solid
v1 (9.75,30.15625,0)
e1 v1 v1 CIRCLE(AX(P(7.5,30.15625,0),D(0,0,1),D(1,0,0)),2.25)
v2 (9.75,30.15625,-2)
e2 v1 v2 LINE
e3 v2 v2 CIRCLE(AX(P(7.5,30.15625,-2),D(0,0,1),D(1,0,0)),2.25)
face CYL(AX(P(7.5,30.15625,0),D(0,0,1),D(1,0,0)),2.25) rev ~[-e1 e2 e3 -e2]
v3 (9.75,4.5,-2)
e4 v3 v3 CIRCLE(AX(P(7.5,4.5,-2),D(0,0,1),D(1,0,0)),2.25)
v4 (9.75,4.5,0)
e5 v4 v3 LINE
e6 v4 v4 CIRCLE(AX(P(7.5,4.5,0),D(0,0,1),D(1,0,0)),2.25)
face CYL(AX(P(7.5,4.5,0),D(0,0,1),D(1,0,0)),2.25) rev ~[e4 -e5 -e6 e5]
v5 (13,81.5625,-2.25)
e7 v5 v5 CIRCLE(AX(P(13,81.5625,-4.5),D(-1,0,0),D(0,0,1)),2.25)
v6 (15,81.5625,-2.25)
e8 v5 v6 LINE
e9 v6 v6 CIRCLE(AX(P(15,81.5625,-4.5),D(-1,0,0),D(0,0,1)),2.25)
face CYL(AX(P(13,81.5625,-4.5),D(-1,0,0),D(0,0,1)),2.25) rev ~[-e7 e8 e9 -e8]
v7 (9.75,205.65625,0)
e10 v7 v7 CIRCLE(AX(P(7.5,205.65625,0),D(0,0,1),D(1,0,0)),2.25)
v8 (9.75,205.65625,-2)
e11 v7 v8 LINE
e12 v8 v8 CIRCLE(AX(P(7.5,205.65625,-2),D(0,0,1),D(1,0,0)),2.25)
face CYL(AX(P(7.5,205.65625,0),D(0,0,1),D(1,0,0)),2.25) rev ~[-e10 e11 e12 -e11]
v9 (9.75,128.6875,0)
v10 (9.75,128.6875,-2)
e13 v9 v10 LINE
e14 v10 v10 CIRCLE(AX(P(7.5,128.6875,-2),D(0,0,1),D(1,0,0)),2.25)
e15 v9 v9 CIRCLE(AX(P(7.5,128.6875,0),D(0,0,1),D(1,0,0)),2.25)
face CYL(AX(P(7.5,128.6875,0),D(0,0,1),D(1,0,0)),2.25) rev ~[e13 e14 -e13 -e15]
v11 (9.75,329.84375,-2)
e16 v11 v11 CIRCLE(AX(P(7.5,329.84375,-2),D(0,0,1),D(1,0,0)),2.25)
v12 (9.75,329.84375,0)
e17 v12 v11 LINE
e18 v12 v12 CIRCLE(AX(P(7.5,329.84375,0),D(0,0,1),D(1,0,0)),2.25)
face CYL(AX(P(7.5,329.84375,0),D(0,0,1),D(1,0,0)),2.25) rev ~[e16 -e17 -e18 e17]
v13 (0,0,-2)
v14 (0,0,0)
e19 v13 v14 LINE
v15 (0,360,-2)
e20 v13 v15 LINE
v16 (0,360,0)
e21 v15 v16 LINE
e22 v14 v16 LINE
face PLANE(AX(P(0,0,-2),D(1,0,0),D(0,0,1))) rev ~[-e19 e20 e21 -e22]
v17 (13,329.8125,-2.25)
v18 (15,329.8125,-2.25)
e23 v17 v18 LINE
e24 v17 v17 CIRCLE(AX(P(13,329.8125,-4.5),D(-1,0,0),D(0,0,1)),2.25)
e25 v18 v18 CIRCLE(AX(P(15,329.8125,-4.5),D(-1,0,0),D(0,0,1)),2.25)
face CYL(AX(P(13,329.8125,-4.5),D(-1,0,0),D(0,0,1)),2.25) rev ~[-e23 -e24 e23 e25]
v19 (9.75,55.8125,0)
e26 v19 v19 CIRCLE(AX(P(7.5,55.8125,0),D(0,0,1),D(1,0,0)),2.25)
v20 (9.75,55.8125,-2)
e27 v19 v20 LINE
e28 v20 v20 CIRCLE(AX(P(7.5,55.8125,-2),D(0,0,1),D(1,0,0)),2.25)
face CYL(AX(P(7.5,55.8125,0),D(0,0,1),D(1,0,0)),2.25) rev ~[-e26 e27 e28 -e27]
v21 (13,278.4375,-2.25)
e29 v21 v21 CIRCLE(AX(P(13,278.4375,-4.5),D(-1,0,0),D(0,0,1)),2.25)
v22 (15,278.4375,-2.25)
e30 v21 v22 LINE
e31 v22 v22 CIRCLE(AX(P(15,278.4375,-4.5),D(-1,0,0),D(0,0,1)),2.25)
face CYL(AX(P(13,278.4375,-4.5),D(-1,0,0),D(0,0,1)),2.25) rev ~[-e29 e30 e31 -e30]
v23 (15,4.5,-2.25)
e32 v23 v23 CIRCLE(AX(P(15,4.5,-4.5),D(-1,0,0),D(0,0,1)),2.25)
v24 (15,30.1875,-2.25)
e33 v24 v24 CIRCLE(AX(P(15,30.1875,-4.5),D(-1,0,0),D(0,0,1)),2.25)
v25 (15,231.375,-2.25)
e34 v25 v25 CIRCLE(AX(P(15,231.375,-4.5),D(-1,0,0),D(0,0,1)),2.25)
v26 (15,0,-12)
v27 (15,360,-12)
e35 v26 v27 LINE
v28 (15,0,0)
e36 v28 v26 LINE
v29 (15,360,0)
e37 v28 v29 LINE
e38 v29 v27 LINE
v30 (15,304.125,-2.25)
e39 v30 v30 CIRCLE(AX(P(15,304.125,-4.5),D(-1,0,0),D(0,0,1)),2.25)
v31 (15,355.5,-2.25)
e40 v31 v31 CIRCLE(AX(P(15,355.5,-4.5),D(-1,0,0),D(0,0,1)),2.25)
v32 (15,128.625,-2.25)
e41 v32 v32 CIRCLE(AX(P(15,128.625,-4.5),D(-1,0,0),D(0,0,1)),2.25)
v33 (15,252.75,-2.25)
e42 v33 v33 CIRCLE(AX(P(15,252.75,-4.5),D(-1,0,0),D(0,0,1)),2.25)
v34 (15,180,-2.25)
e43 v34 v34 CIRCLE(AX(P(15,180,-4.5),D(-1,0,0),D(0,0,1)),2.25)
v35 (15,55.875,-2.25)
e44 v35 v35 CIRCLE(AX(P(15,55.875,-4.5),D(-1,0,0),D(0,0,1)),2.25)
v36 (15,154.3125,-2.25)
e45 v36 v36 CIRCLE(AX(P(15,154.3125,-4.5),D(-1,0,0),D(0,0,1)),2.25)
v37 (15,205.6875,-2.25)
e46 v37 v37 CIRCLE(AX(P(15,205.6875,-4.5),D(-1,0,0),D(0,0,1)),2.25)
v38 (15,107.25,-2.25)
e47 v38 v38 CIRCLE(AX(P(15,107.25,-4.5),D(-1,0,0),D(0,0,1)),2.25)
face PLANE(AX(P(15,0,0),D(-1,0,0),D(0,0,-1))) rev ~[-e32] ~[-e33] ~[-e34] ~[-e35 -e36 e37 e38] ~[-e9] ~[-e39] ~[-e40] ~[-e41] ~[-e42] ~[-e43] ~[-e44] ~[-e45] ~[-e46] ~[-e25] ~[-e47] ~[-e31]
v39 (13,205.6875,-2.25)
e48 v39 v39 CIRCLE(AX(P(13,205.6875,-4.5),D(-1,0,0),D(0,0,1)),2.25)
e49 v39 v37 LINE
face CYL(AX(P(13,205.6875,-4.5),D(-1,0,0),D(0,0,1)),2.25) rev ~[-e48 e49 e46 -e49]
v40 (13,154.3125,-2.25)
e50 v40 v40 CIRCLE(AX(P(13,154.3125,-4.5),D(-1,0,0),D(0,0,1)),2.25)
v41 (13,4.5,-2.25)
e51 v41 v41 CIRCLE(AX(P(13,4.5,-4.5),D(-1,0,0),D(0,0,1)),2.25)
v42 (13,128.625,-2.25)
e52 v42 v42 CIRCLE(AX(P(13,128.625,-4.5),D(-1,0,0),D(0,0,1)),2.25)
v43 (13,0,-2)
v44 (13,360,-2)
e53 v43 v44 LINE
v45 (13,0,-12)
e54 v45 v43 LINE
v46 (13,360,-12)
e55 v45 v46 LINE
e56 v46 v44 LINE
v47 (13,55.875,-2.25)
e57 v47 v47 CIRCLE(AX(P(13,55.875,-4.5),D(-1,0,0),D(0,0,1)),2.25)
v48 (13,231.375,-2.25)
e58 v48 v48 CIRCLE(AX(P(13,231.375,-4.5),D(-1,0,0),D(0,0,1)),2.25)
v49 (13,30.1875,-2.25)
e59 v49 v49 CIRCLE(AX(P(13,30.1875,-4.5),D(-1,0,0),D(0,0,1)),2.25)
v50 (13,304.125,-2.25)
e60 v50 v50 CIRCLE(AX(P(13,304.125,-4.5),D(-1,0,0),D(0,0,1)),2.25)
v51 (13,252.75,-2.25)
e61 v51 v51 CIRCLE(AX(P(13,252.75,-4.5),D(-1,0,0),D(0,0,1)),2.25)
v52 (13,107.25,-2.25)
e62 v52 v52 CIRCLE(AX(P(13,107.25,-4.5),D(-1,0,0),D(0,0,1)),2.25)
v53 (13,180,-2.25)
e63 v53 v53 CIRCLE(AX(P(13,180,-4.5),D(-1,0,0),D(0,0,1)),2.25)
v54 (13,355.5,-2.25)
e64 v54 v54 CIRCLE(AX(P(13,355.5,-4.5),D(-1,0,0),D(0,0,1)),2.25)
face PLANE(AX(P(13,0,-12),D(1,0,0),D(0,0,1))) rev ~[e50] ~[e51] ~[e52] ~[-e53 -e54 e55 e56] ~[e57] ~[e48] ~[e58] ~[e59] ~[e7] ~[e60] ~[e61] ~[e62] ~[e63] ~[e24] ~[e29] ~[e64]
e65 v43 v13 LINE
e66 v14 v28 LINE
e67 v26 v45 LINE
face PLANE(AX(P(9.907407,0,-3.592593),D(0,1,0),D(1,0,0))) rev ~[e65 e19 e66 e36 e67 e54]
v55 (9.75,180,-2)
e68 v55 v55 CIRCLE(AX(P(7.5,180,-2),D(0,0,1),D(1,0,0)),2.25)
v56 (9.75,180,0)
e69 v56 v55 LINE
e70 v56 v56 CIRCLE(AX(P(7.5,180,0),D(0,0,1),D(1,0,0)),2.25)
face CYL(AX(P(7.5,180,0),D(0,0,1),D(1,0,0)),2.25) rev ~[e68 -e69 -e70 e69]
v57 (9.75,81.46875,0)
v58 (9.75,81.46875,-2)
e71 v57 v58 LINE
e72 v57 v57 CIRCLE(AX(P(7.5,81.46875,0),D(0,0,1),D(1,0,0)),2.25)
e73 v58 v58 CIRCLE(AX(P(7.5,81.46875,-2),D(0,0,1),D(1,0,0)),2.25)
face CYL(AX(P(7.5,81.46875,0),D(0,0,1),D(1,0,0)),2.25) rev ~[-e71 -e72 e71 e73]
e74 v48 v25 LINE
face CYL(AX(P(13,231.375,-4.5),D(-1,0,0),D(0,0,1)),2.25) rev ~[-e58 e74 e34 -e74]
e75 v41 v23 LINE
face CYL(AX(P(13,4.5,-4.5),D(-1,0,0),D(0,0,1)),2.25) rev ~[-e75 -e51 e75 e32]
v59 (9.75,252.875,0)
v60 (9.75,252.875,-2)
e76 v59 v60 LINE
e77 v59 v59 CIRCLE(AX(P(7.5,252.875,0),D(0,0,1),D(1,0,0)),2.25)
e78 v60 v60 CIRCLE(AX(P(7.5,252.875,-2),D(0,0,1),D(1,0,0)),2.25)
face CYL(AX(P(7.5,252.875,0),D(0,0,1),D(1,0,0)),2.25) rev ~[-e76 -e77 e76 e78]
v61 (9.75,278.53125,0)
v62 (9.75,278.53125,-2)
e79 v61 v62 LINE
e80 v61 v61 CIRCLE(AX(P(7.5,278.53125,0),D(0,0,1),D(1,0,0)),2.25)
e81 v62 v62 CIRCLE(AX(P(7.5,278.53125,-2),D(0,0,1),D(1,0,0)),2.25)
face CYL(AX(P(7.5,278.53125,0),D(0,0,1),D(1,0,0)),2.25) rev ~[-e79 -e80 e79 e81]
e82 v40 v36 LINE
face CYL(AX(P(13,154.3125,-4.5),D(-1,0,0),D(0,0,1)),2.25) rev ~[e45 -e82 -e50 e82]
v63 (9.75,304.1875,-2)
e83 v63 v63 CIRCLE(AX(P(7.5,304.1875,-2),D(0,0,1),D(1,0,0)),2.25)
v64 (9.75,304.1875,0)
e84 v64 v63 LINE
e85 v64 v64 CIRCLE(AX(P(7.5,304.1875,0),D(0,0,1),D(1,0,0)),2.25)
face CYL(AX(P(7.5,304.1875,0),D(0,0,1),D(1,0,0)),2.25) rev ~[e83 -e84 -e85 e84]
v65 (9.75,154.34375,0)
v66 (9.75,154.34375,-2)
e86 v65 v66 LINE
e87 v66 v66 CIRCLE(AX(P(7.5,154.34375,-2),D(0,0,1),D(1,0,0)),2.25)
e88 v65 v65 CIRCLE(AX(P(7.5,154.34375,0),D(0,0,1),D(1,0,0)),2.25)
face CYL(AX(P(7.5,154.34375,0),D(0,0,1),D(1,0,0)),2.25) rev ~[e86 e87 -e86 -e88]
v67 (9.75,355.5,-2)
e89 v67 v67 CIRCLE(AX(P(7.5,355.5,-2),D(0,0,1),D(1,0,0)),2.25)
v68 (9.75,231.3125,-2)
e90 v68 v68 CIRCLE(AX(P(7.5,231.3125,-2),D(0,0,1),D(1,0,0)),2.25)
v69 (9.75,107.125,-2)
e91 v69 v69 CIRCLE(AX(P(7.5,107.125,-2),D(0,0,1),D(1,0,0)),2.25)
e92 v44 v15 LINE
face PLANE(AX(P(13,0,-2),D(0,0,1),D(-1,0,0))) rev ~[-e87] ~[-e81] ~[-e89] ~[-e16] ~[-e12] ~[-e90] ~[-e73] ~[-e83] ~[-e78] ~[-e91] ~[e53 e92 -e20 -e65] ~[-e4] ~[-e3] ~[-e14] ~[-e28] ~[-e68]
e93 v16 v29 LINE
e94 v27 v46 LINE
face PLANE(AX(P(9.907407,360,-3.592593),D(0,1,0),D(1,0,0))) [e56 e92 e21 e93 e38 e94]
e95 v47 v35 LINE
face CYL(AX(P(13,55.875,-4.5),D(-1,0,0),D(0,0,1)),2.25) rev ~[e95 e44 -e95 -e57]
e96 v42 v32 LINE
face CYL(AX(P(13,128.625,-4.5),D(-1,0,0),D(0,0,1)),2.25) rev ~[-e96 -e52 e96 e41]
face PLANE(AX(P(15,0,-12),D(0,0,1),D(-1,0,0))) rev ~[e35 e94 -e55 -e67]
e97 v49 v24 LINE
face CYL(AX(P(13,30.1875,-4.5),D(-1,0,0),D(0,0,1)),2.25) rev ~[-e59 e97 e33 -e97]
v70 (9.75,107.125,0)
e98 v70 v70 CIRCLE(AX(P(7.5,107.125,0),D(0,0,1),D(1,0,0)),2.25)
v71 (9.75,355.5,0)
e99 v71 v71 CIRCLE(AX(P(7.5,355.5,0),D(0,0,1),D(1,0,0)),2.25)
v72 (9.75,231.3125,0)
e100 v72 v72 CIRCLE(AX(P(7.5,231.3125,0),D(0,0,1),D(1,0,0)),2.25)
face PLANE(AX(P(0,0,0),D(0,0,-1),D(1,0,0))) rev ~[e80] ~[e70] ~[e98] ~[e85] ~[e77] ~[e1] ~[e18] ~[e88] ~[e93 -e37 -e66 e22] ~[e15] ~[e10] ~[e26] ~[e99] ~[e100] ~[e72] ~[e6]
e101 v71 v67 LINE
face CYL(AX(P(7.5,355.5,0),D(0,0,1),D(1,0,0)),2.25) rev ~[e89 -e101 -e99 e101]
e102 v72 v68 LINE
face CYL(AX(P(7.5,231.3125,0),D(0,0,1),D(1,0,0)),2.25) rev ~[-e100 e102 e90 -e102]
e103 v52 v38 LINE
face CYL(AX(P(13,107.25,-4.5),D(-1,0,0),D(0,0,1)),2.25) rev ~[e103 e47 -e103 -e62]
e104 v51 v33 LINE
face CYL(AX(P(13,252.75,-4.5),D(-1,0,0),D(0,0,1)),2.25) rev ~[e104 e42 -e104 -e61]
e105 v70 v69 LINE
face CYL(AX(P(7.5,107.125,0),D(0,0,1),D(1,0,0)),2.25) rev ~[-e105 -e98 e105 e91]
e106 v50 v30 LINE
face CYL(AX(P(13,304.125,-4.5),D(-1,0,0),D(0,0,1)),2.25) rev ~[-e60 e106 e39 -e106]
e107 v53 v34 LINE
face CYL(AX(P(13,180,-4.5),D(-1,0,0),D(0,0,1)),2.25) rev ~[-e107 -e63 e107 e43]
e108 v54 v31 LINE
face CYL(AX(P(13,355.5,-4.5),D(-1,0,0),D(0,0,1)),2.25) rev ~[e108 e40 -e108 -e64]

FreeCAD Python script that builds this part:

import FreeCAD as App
import Part
import Sketcher
from FreeCAD import Vector
Q = App.Units.Quantity


def add_polygon(sketch, points):
    """Adds a closed chain of lines whose ends are joined by coincident constraints."""
    first, n = sketch.GeometryCount, len(points)
    for a, b in zip(points, points[1:] + points[:1]):
        sketch.addGeometry(Part.LineSegment(App.Vector(*a, 0), App.Vector(*b, 0)), False)
    for i in range(n):
        sketch.addConstraint(Sketcher.Constraint("Coincident", first + i, 2, first + (i + 1) % n, 1))

doc = App.newDocument("Part")
body = doc.addObject("PartDesign::Body", "Body")

# Sketch on XZ plane
sketch1 = body.newObject("Sketcher::SketchObject", "Sketch")
sketch1.AttachmentSupport = (doc.getObject("XZ_Plane"), [""])
sketch1.MapMode = "FlatFace"
add_polygon(sketch1, [(0, 0), (15, 0), (15, -12), (13, -12), (13, -2), (0, -2)])  # lines 0-5
sketch1.addConstraint([
    Sketcher.Constraint("Horizontal", 0),
    Sketcher.Constraint("Vertical", 1),
    Sketcher.Constraint("Horizontal", 2),
    Sketcher.Constraint("Vertical", 3),
    Sketcher.Constraint("Horizontal", 4),
    Sketcher.Constraint("Vertical", 5),
    Sketcher.Constraint("Coincident", 5, 2, -1, 1),
    Sketcher.Constraint("Equal", 2, 5),
    Sketcher.Constraint("DistanceX", 0, 1, 0, 2, Q("15 mm")),
    Sketcher.Constraint("DistanceX", 2, 2, 2, 1, Q("2 mm")),
    Sketcher.Constraint("DistanceY", 1, 2, 1, 1, Q("12 mm")),
])
pad1 = body.newObject("PartDesign::Pad", "Pad")
pad1.Profile = sketch1
pad1.Length = 360
pad1.Reversed = True

# Sketch on YZ plane
sketch2 = body.newObject("Sketcher::SketchObject", "Sketch001")
sketch2.AttachmentSupport = (doc.getObject("YZ_Plane"), [""])
sketch2.MapMode = "FlatFace"
sketch2.AttachmentOffset = App.Placement(Vector(0, 0, 13), App.Rotation())
sketch2.addGeometry(Part.Circle(Vector(329.8, -4.5, 0), Vector(0, 0, 1), 2.2), False)
sketch2.addConstraint([
    Sketcher.Constraint("Diameter", 0, Q("4.5 mm")),
    Sketcher.Constraint("DistanceY", 0, 3, -1, 1, Q("4.5 mm")),
    Sketcher.Constraint("DistanceX", -1, 1, 0, 3, Q("329.8125 mm")),
])
pocket1 = body.newObject("PartDesign::Pocket", "Pocket")
pocket1.Profile = sketch2
pocket1.Type = "UpToFirst"
pocket1.Reversed = True

# Sketch on YZ plane
sketch3 = body.newObject("Sketcher::SketchObject", "Sketch002")
sketch3.AttachmentSupport = (doc.getObject("YZ_Plane"), [""])
sketch3.MapMode = "FlatFace"
sketch3.AttachmentOffset = App.Placement(Vector(0, 0, 13), App.Rotation())
sketch3.addGeometry(Part.Circle(Vector(304.1, -4.5, 0), Vector(0, 0, 1), 2.2), False)
sketch3.addConstraint([
    Sketcher.Constraint("Diameter", 0, Q("4.5 mm")),
    Sketcher.Constraint("DistanceY", 0, 3, -1, 1, Q("4.5 mm")),
    Sketcher.Constraint("DistanceX", -1, 1, 0, 3, Q("304.125 mm")),
])
pocket2 = body.newObject("PartDesign::Pocket", "Pocket001")
pocket2.Profile = sketch3
pocket2.Type = "UpToFirst"
pocket2.Reversed = True

# Sketch on YZ plane
sketch4 = body.newObject("Sketcher::SketchObject", "Sketch003")
sketch4.AttachmentSupport = (doc.getObject("YZ_Plane"), [""])
sketch4.MapMode = "FlatFace"
sketch4.AttachmentOffset = App.Placement(Vector(0, 0, 13), App.Rotation())
sketch4.addGeometry(Part.Circle(Vector(278.4, -4.5, 0), Vector(0, 0, 1), 2.2), False)
sketch4.addConstraint([
    Sketcher.Constraint("Diameter", 0, Q("4.5 mm")),
    Sketcher.Constraint("DistanceY", 0, 3, -1, 1, Q("4.5 mm")),
    Sketcher.Constraint("DistanceX", -1, 1, 0, 3, Q("278.4375 mm")),
])
pocket3 = body.newObject("PartDesign::Pocket", "Pocket002")
pocket3.Profile = sketch4
pocket3.Type = "UpToFirst"
pocket3.Reversed = True

# Sketch on YZ plane
sketch5 = body.newObject("Sketcher::SketchObject", "Sketch004")
sketch5.AttachmentSupport = (doc.getObject("YZ_Plane"), [""])
sketch5.MapMode = "FlatFace"
sketch5.AttachmentOffset = App.Placement(Vector(0, 0, 13), App.Rotation())
sketch5.addGeometry(Part.Circle(Vector(252.8, -4.5, 0), Vector(0, 0, 1), 2.2), False)
sketch5.addConstraint([
    Sketcher.Constraint("Diameter", 0, Q("4.5 mm")),
    Sketcher.Constraint("DistanceY", 0, 3, -1, 1, Q("4.5 mm")),
    Sketcher.Constraint("DistanceX", -1, 1, 0, 3, Q("252.75 mm")),
])
pocket4 = body.newObject("PartDesign::Pocket", "Pocket003")
pocket4.Profile = sketch5
pocket4.Type = "UpToFirst"
pocket4.Reversed = True

# Sketch on YZ plane
sketch6 = body.newObject("Sketcher::SketchObject", "Sketch005")
sketch6.AttachmentSupport = (doc.getObject("YZ_Plane"), [""])
sketch6.MapMode = "FlatFace"
sketch6.AttachmentOffset = App.Placement(Vector(0, 0, 13), App.Rotation())
sketch6.addGeometry(Part.Circle(Vector(231.4, -4.5, 0), Vector(0, 0, 1), 2.2), False)
sketch6.addConstraint([
    Sketcher.Constraint("Diameter", 0, Q("4.5 mm")),
    Sketcher.Constraint("DistanceY", 0, 3, -1, 1, Q("4.5 mm")),
    Sketcher.Constraint("DistanceX", -1, 1, 0, 3, Q("231.375 mm")),
])
pocket5 = body.newObject("PartDesign::Pocket", "Pocket004")
pocket5.Profile = sketch6
pocket5.Type = "UpToFirst"
pocket5.Reversed = True

# Sketch on YZ plane
sketch7 = body.newObject("Sketcher::SketchObject", "Sketch006")
sketch7.AttachmentSupport = (doc.getObject("YZ_Plane"), [""])
sketch7.MapMode = "FlatFace"
sketch7.AttachmentOffset = App.Placement(Vector(0, 0, 13), App.Rotation())
sketch7.addGeometry(Part.Circle(Vector(205.7, -4.5, 0), Vector(0, 0, 1), 2.2), False)
sketch7.addConstraint([
    Sketcher.Constraint("Diameter", 0, Q("4.5 mm")),
    Sketcher.Constraint("DistanceY", 0, 3, -1, 1, Q("4.5 mm")),
    Sketcher.Constraint("DistanceX", -1, 1, 0, 3, Q("205.6875 mm")),
])
pocket6 = body.newObject("PartDesign::Pocket", "Pocket005")
pocket6.Profile = sketch7
pocket6.Type = "UpToFirst"
pocket6.Reversed = True

# Sketch on YZ plane
sketch8 = body.newObject("Sketcher::SketchObject", "Sketch007")
sketch8.AttachmentSupport = (doc.getObject("YZ_Plane"), [""])
sketch8.MapMode = "FlatFace"
sketch8.AttachmentOffset = App.Placement(Vector(0, 0, 13), App.Rotation())
sketch8.addGeometry(Part.Circle(Vector(180, -4.5, 0), Vector(0, 0, 1), 2.2), False)
sketch8.addConstraint([
    Sketcher.Constraint("Diameter", 0, Q("4.5 mm")),
    Sketcher.Constraint("DistanceX", -1, 1, 0, 3, Q("180 mm")),
    Sketcher.Constraint("DistanceY", 0, 3, -1, 1, Q("4.5 mm")),
])
pocket7 = body.newObject("PartDesign::Pocket", "Pocket006")
pocket7.Profile = sketch8
pocket7.Type = "UpToFirst"
pocket7.Reversed = True

# Sketch on YZ plane
sketch9 = body.newObject("Sketcher::SketchObject", "Sketch008")
sketch9.AttachmentSupport = (doc.getObject("YZ_Plane"), [""])
sketch9.MapMode = "FlatFace"
sketch9.AttachmentOffset = App.Placement(Vector(0, 0, 13), App.Rotation())
sketch9.addGeometry(Part.Circle(Vector(154.3, -4.5, 0), Vector(0, 0, 1), 2.2), False)
sketch9.addConstraint([
    Sketcher.Constraint("Diameter", 0, Q("4.5 mm")),
    Sketcher.Constraint("DistanceY", 0, 3, -1, 1, Q("4.5 mm")),
    Sketcher.Constraint("DistanceX", -1, 1, 0, 3, Q("154.3125 mm")),
])
pocket8 = body.newObject("PartDesign::Pocket", "Pocket007")
pocket8.Profile = sketch9
pocket8.Type = "UpToFirst"
pocket8.Reversed = True

# Sketch on YZ plane
sketch10 = body.newObject("Sketcher::SketchObject", "Sketch009")
sketch10.AttachmentSupport = (doc.getObject("YZ_Plane"), [""])
sketch10.MapMode = "FlatFace"
sketch10.AttachmentOffset = App.Placement(Vector(0, 0, 13), App.Rotation())
sketch10.addGeometry(Part.Circle(Vector(128.6, -4.5, 0), Vector(0, 0, 1), 2.2), False)
sketch10.addConstraint([
    Sketcher.Constraint("Diameter", 0, Q("4.5 mm")),
    Sketcher.Constraint("DistanceY", 0, 3, -1, 1, Q("4.5 mm")),
    Sketcher.Constraint("DistanceX", -1, 1, 0, 3, Q("128.625 mm")),
])
pocket9 = body.newObject("PartDesign::Pocket", "Pocket008")
pocket9.Profile = sketch10
pocket9.Type = "UpToFirst"
pocket9.Reversed = True

# Sketch on YZ plane
sketch11 = body.newObject("Sketcher::SketchObject", "Sketch010")
sketch11.AttachmentSupport = (doc.getObject("YZ_Plane"), [""])
sketch11.MapMode = "FlatFace"
sketch11.AttachmentOffset = App.Placement(Vector(0, 0, 13), App.Rotation())
sketch11.addGeometry(Part.Circle(Vector(107.2, -4.5, 0), Vector(0, 0, 1), 2.2), False)
sketch11.addConstraint([
    Sketcher.Constraint("Diameter", 0, Q("4.5 mm")),
    Sketcher.Constraint("DistanceY", 0, 3, -1, 1, Q("4.5 mm")),
    Sketcher.Constraint("DistanceX", -1, 1, 0, 3, Q("107.25 mm")),
])
pocket10 = body.newObject("PartDesign::Pocket", "Pocket009")
pocket10.Profile = sketch11
pocket10.Type = "UpToFirst"
pocket10.Reversed = True

# Sketch on YZ plane
sketch12 = body.newObject("Sketcher::SketchObject", "Sketch011")
sketch12.AttachmentSupport = (doc.getObject("YZ_Plane"), [""])
sketch12.MapMode = "FlatFace"
sketch12.AttachmentOffset = App.Placement(Vector(0, 0, 13), App.Rotation())
sketch12.addGeometry(Part.Circle(Vector(81.6, -4.5, 0), Vector(0, 0, 1), 2.2), False)
sketch12.addConstraint([
    Sketcher.Constraint("Diameter", 0, Q("4.5 mm")),
    Sketcher.Constraint("DistanceY", 0, 3, -1, 1, Q("4.5 mm")),
    Sketcher.Constraint("DistanceX", -1, 1, 0, 3, Q("81.5625 mm")),
])
pocket11 = body.newObject("PartDesign::Pocket", "Pocket010")
pocket11.Profile = sketch12
pocket11.Type = "UpToFirst"
pocket11.Reversed = True

# Sketch on YZ plane
sketch13 = body.newObject("Sketcher::SketchObject", "Sketch012")
sketch13.AttachmentSupport = (doc.getObject("YZ_Plane"), [""])
sketch13.MapMode = "FlatFace"
sketch13.AttachmentOffset = App.Placement(Vector(0, 0, 13), App.Rotation())
sketch13.addGeometry(Part.Circle(Vector(55.9, -4.5, 0), Vector(0, 0, 1), 2.2), False)
sketch13.addConstraint([
    Sketcher.Constraint("Diameter", 0, Q("4.5 mm")),
    Sketcher.Constraint("DistanceY", 0, 3, -1, 1, Q("4.5 mm")),
    Sketcher.Constraint("DistanceX", -1, 1, 0, 3, Q("55.875 mm")),
])
pocket12 = body.newObject("PartDesign::Pocket", "Pocket011")
pocket12.Profile = sketch13
pocket12.Type = "UpToFirst"
pocket12.Reversed = True

# Sketch on YZ plane
sketch14 = body.newObject("Sketcher::SketchObject", "Sketch013")
sketch14.AttachmentSupport = (doc.getObject("YZ_Plane"), [""])
sketch14.MapMode = "FlatFace"
sketch14.AttachmentOffset = App.Placement(Vector(0, 0, 13), App.Rotation())
sketch14.addGeometry(Part.Circle(Vector(30.2, -4.5, 0), Vector(0, 0, 1), 2.2), False)
sketch14.addConstraint([
    Sketcher.Constraint("Diameter", 0, Q("4.5 mm")),
    Sketcher.Constraint("DistanceY", 0, 3, -1, 1, Q("4.5 mm")),
    Sketcher.Constraint("DistanceX", -1, 1, 0, 3, Q("30.1875 mm")),
])
pocket13 = body.newObject("PartDesign::Pocket", "Pocket012")
pocket13.Profile = sketch14
pocket13.Type = "UpToFirst"
pocket13.Reversed = True

# Sketch on YZ plane
sketch15 = body.newObject("Sketcher::SketchObject", "Sketch014")
sketch15.AttachmentSupport = (doc.getObject("YZ_Plane"), [""])
sketch15.MapMode = "FlatFace"
sketch15.AttachmentOffset = App.Placement(Vector(0, 0, 13), App.Rotation())
sketch15.addGeometry(Part.Circle(Vector(4.5, -4.5, 0), Vector(0, 0, 1), 2.2), False)
sketch15.addConstraint([
    Sketcher.Constraint("Diameter", 0, Q("4.5 mm")),
    Sketcher.Constraint("DistanceX", -1, 1, 0, 3, Q("4.5 mm")),
    Sketcher.Constraint("DistanceY", 0, 3, -1, 1, Q("4.5 mm")),
])
pocket14 = body.newObject("PartDesign::Pocket", "Pocket013")
pocket14.Profile = sketch15
pocket14.Type = "UpToFirst"
pocket14.Reversed = True

# Sketch on YZ plane
sketch16 = body.newObject("Sketcher::SketchObject", "Sketch015")
sketch16.AttachmentSupport = (doc.getObject("YZ_Plane"), [""])
sketch16.MapMode = "FlatFace"
sketch16.AttachmentOffset = App.Placement(Vector(0, 0, 13), App.Rotation())
sketch16.addGeometry(Part.Circle(Vector(355.5, -4.5, 0), Vector(0, 0, 1), 2.2), False)
sketch16.addConstraint([
    Sketcher.Constraint("Diameter", 0, Q("4.5 mm")),
    Sketcher.Constraint("DistanceX", -1, 1, 0, 3, Q("355.5 mm")),
    Sketcher.Constraint("DistanceY", 0, 3, -1, 1, Q("4.5 mm")),
])
pocket15 = body.newObject("PartDesign::Pocket", "Pocket014")
pocket15.Profile = sketch16
pocket15.Type = "UpToFirst"
pocket15.Reversed = True

# Sketch on XY plane
sketch17 = body.newObject("Sketcher::SketchObject", "Sketch016")
sketch17.AttachmentSupport = (doc.getObject("XY_Plane"), [""])
sketch17.MapMode = "FlatFace"
sketch17.addGeometry(Part.Circle(Vector(7.5, 355.5, 0), Vector(0, 0, 1), 2.2), False)
sketch17.addConstraint([
    Sketcher.Constraint("Diameter", 0, Q("4.5 mm")),
    Sketcher.Constraint("DistanceX", -1, 1, 0, 3, Q("7.5 mm")),
    Sketcher.Constraint("DistanceY", -1, 1, 0, 3, Q("355.5 mm")),
])
pocket16 = body.newObject("PartDesign::Pocket", "Pocket015")
pocket16.Profile = sketch17
pocket16.Length = 2
doc.recompute()

linearpattern = body.newObject("PartDesign::LinearPattern", "LinearPattern")
linearpattern.Originals = [pocket16]
linearpattern.Direction = (doc.getObject("Y_Axis"), [""])
linearpattern.Mode = "offset"
linearpattern.Offset = 25.65625
linearpattern.Occurrences = 5
linearpattern.Reversed = True
body.Tip = linearpattern
doc.recompute()

linearpattern2 = body.newObject("PartDesign::LinearPattern", "LinearPattern001")
linearpattern2.Originals = [pocket16]
linearpattern2.Direction = (doc.getObject("Y_Axis"), [""])
linearpattern2.Mode = "offset"
linearpattern2.Offset = 124.1875
linearpattern2.Occurrences = 3
linearpattern2.Reversed = True
body.Tip = linearpattern2

# Sketch on XY plane
sketch18 = body.newObject("Sketcher::SketchObject", "Sketch017")
sketch18.AttachmentSupport = (doc.getObject("XY_Plane"), [""])
sketch18.MapMode = "FlatFace"
sketch18.addGeometry(Part.Circle(Vector(7.5, 205.7, 0), Vector(0, 0, 1), 2.2), False)
sketch18.addConstraint([
    Sketcher.Constraint("Diameter", 0, Q("4.5 mm")),
    Sketcher.Constraint("DistanceX", -1, 1, 0, 3, Q("7.5 mm")),
    Sketcher.Constraint("DistanceY", -1, 1, 0, 3, Q("205.65625 mm")),
])
pocket17 = body.newObject("PartDesign::Pocket", "Pocket016")
pocket17.Profile = sketch18
pocket17.Length = 2

# Sketch on XY plane
sketch19 = body.newObject("Sketcher::SketchObject", "Sketch018")
sketch19.AttachmentSupport = (doc.getObject("XY_Plane"), [""])
sketch19.MapMode = "FlatFace"
sketch19.addGeometry(Part.Circle(Vector(7.5, 81.5, 0), Vector(0, 0, 1), 2.2), False)
sketch19.addConstraint([
    Sketcher.Constraint("Diameter", 0, Q("4.5 mm")),
    Sketcher.Constraint("DistanceX", -1, 1, 0, 3, Q("7.5 mm")),
    Sketcher.Constraint("DistanceY", -1, 1, 0, 3, Q("81.46875 mm")),
])
pocket18 = body.newObject("PartDesign::Pocket", "Pocket017")
pocket18.Profile = sketch19
pocket18.Length = 2

# Sketch on XY plane
sketch20 = body.newObject("Sketcher::SketchObject", "Sketch019")
sketch20.AttachmentSupport = (doc.getObject("XY_Plane"), [""])
sketch20.MapMode = "FlatFace"
sketch20.addGeometry(Part.Circle(Vector(7.5, 180, 0), Vector(0, 0, 1), 2.2), False)
sketch20.addConstraint([
    Sketcher.Constraint("Diameter", 0, Q("4.5 mm")),
    Sketcher.Constraint("DistanceY", -1, 1, 0, 3, Q("180 mm")),
    Sketcher.Constraint("DistanceX", -1, 1, 0, 3, Q("7.5 mm")),
])
pocket19 = body.newObject("PartDesign::Pocket", "Pocket018")
pocket19.Profile = sketch20
pocket19.Length = 2

# Sketch on XY plane
sketch21 = body.newObject("Sketcher::SketchObject", "Sketch020")
sketch21.AttachmentSupport = (doc.getObject("XY_Plane"), [""])
sketch21.MapMode = "FlatFace"
sketch21.addGeometry(Part.Circle(Vector(7.5, 55.8, 0), Vector(0, 0, 1), 2.2), False)
sketch21.addConstraint([
    Sketcher.Constraint("Diameter", 0, Q("4.5 mm")),
    Sketcher.Constraint("DistanceX", -1, 1, 0, 3, Q("7.5 mm")),
    Sketcher.Constraint("DistanceY", -1, 1, 0, 3, Q("55.8125 mm")),
])
pocket20 = body.newObject("PartDesign::Pocket", "Pocket019")
pocket20.Profile = sketch21
pocket20.Length = 2

# Sketch on XY plane
sketch22 = body.newObject("Sketcher::SketchObject", "Sketch021")
sketch22.AttachmentSupport = (doc.getObject("XY_Plane"), [""])
sketch22.MapMode = "FlatFace"
sketch22.addGeometry(Part.Circle(Vector(7.5, 154.3, 0), Vector(0, 0, 1), 2.2), False)
sketch22.addConstraint([
    Sketcher.Constraint("Diameter", 0, Q("4.5 mm")),
    Sketcher.Constraint("DistanceX", -1, 1, 0, 3, Q("7.5 mm")),
    Sketcher.Constraint("DistanceY", -1, 1, 0, 3, Q("154.34375 mm")),
])
pocket21 = body.newObject("PartDesign::Pocket", "Pocket020")
pocket21.Profile = sketch22
pocket21.Length = 2

# Sketch on XY plane
sketch23 = body.newObject("Sketcher::SketchObject", "Sketch022")
sketch23.AttachmentSupport = (doc.getObject("XY_Plane"), [""])
sketch23.MapMode = "FlatFace"
sketch23.addGeometry(Part.Circle(Vector(7.5, 30.2, 0), Vector(0, 0, 1), 2.2), False)
sketch23.addConstraint([
    Sketcher.Constraint("Diameter", 0, Q("4.5 mm")),
    Sketcher.Constraint("DistanceX", -1, 1, 0, 3, Q("7.5 mm")),
    Sketcher.Constraint("DistanceY", -1, 1, 0, 3, Q("30.15625 mm")),
])
pocket22 = body.newObject("PartDesign::Pocket", "Pocket021")
pocket22.Profile = sketch23
pocket22.Length = 2

# Sketch on XY plane
sketch24 = body.newObject("Sketcher::SketchObject", "Sketch023")
sketch24.AttachmentSupport = (doc.getObject("XY_Plane"), [""])
sketch24.MapMode = "FlatFace"
sketch24.addGeometry(Part.Circle(Vector(7.5, 128.7, 0), Vector(0, 0, 1), 2.2), False)
sketch24.addConstraint([
    Sketcher.Constraint("Diameter", 0, Q("4.5 mm")),
    Sketcher.Constraint("DistanceX", -1, 1, 0, 3, Q("7.5 mm")),
    Sketcher.Constraint("DistanceY", -1, 1, 0, 3, Q("128.6875 mm")),
])
pocket23 = body.newObject("PartDesign::Pocket", "Pocket022")
pocket23.Profile = sketch24
pocket23.Length = 2

# Sketch on XY plane
sketch25 = body.newObject("Sketcher::SketchObject", "Sketch024")
sketch25.AttachmentSupport = (doc.getObject("XY_Plane"), [""])
sketch25.MapMode = "FlatFace"
sketch25.addGeometry(Part.Circle(Vector(7.5, 4.5, 0), Vector(0, 0, 1), 2.2), False)
sketch25.addConstraint([
    Sketcher.Constraint("Diameter", 0, Q("4.5 mm")),
    Sketcher.Constraint("DistanceX", -1, 1, 0, 3, Q("7.5 mm")),
    Sketcher.Constraint("DistanceY", -1, 1, 0, 3, Q("4.5 mm")),
])
pocket24 = body.newObject("PartDesign::Pocket", "Pocket023")
pocket24.Profile = sketch25
pocket24.Length = 2

doc.recompute()
